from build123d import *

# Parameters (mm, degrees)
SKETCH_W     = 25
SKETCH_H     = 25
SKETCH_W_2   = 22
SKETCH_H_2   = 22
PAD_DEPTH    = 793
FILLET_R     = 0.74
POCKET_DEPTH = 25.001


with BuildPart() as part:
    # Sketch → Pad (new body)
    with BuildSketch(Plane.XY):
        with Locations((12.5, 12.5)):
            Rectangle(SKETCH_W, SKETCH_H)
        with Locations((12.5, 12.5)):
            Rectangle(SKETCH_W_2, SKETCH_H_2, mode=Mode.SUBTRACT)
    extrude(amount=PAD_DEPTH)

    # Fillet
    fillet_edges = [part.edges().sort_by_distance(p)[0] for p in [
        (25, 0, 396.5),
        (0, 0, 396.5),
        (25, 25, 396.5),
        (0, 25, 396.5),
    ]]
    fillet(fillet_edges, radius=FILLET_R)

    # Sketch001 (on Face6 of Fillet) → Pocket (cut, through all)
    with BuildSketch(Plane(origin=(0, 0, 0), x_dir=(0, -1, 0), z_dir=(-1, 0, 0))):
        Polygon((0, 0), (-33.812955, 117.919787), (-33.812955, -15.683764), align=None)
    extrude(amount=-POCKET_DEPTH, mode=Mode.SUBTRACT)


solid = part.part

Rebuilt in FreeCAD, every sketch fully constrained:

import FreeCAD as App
import Part
import Sketcher
from FreeCAD import Vector
Q = App.Units.Quantity


def edges_at(feature, points):
    """Names of the edges that pass closest to the given points."""
    edges = feature.Shape.Edges
    near = lambda p: min(range(len(edges)), key=lambda i: edges[i].distToShape(Part.Vertex(*p))[0])
    return sorted({f"Edge{near(p) + 1}" for p in points})

doc = App.newDocument("Part")
body = doc.addObject("PartDesign::Body", "Body")

sketch1 = body.newObject("Sketcher::SketchObject", "Sketch")
sketch1.AttachmentSupport = (doc.getObject("XY_Plane"), [""])
sketch1.MapMode = "FlatFace"
sketch1.addGeometry([
    Part.LineSegment(Vector(0, 25, 0), Vector(0, 0, 0)),
    Part.LineSegment(Vector(0, 0, 0), Vector(25, 0, 0)),
    Part.LineSegment(Vector(25, 0, 0), Vector(25, 25, 0)),
    Part.LineSegment(Vector(25, 25, 0), Vector(0, 25, 0)),
    Part.LineSegment(Vector(24, 2, 0), Vector(2, 2, 0)),
    Part.LineSegment(Vector(2, 2, 0), Vector(2, 24, 0)),
    Part.LineSegment(Vector(2, 24, 0), Vector(24, 24, 0)),
    Part.LineSegment(Vector(24, 24, 0), Vector(24, 2, 0)),
], False)
sketch1.addConstraint([
    Sketcher.Constraint("Coincident", 0, 2, 1, 1),
    Sketcher.Constraint("Coincident", 1, 2, 2, 1),
    Sketcher.Constraint("Coincident", 2, 2, 3, 1),
    Sketcher.Constraint("Coincident", 3, 2, 0, 1),
    Sketcher.Constraint("Coincident", 4, 2, 5, 1),
    Sketcher.Constraint("Coincident", 5, 2, 6, 1),
    Sketcher.Constraint("Coincident", 6, 2, 7, 1),
    Sketcher.Constraint("Coincident", 7, 2, 4, 1),
    Sketcher.Constraint("Vertical", 0),
    Sketcher.Constraint("Horizontal", 1),
    Sketcher.Constraint("Vertical", 2),
    Sketcher.Constraint("Horizontal", 3),
    Sketcher.Constraint("Horizontal", 4),
    Sketcher.Constraint("Vertical", 5),
    Sketcher.Constraint("Horizontal", 6),
    Sketcher.Constraint("Vertical", 7),
    Sketcher.Constraint("Coincident", 0, 2, -1, 1),
    Sketcher.Constraint("Equal", 3, 0),
    Sketcher.Constraint("Equal", 6, 5),
    Sketcher.Constraint("DistanceX", 1, 1, 1, 2, 25.0),
    Sketcher.Constraint("DistanceX", 4, 2, 4, 1, 22.0),
    Sketcher.Constraint("DistanceX", -1, 1, 4, 2, 1.5),
    Sketcher.Constraint("DistanceY", -1, 1, 4, 2, 1.5),
])
pad1 = body.newObject("PartDesign::Pad", "Pad")
pad1.Profile = sketch1
pad1.Length = 793
doc.recompute()

fillet = body.newObject("PartDesign::Fillet", "Fillet")
fillet.Base = (pad1, edges_at(pad1, [
    (25, 0, 396.5),
    (0, 0, 396.5),
    (25, 25, 396.5),
    (0, 25, 396.5),
]))
fillet.Radius = 0.74

sketch2 = body.newObject("Sketcher::SketchObject", "Sketch001")
sketch2.AttachmentSupport = (doc.getObject("YZ_Plane"), [""])
sketch2.MapMode = "FlatFace"
sketch2.addGeometry([
    Part.LineSegment(Vector(0, 0, 0), Vector(34, 118, 0)),
    Part.LineSegment(Vector(34, 118, 0), Vector(34, -16, 0)),
    Part.LineSegment(Vector(34, -16, 0), Vector(0, 0, 0)),
], False)
sketch2.addConstraint([
    Sketcher.Constraint("Coincident", 0, 2, 1, 1),
    Sketcher.Constraint("Coincident", 1, 2, 2, 1),
    Sketcher.Constraint("Coincident", 2, 2, 0, 1),
    Sketcher.Constraint("Vertical", 1),
    Sketcher.Constraint("Coincident", 2, 2, -1, 1),
    Sketcher.Constraint("Angle", 0, Q("74 deg")),
    Sketcher.Constraint("DistanceY", 1, 2, 1, 1, 133.603551),
    Sketcher.Constraint("Distance", 0, 122.671888),
])
pocket1 = body.newObject("PartDesign::Pocket", "Pocket")
pocket1.Profile = sketch2
pocket1.Type = "ThroughAll"
pocket1.Reversed = True

doc.recompute()
